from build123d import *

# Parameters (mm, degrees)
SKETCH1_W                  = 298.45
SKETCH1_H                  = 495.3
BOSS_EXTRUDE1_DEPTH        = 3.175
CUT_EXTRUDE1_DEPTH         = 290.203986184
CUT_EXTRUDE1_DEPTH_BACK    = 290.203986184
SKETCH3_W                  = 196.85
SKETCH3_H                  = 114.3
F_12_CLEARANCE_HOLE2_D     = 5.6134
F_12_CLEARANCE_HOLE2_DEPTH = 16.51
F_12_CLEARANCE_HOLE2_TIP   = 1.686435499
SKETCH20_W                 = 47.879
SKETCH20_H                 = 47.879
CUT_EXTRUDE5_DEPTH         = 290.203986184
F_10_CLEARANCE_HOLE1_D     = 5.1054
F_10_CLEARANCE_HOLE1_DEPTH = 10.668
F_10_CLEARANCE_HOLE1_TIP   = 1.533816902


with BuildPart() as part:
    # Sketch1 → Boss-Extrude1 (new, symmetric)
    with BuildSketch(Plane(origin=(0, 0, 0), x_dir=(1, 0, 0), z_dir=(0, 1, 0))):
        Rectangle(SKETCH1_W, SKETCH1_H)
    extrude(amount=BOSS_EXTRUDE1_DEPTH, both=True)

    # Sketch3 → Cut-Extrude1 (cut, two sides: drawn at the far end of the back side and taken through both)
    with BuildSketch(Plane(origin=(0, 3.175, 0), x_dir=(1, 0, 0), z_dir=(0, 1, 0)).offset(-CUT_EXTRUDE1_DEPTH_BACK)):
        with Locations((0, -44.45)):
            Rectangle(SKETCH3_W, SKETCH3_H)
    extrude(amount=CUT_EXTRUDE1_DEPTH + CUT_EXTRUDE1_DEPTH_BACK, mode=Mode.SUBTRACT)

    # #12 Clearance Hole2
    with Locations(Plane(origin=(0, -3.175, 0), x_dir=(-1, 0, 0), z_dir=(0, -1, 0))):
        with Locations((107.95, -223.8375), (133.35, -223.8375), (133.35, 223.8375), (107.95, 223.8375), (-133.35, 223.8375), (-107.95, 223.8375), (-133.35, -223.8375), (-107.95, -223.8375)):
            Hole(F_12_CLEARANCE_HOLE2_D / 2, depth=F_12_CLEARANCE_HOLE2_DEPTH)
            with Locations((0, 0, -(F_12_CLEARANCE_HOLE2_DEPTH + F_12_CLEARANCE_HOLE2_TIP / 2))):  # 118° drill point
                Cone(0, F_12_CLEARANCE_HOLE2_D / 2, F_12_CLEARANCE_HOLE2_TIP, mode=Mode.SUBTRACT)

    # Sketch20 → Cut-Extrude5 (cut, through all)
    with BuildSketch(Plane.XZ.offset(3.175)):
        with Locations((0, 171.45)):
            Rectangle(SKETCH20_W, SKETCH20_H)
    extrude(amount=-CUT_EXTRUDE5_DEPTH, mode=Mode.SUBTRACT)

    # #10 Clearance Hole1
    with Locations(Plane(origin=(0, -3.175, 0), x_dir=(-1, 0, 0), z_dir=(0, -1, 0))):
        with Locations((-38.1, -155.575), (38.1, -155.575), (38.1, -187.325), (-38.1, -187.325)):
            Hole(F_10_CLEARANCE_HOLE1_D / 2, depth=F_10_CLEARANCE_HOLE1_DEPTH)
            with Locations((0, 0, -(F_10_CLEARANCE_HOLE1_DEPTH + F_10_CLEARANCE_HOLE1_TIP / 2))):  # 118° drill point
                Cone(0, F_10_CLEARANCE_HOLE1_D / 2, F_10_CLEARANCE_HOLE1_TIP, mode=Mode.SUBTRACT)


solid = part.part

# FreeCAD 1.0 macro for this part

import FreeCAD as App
import Part
import Sketcher
Q = App.Units.Quantity


def add_polygon(sketch, points):
    """Adds a closed chain of lines whose ends are joined by coincident constraints."""
    first, n = sketch.GeometryCount, len(points)
    for a, b in zip(points, points[1:] + points[:1]):
        sketch.addGeometry(Part.LineSegment(App.Vector(*a, 0), App.Vector(*b, 0)), False)
    for i in range(n):
        sketch.addConstraint(Sketcher.Constraint("Coincident", first + i, 2, first + (i + 1) % n, 1))

doc = App.newDocument("Part")
body = doc.addObject("PartDesign::Body", "Body")

# Sketch on XZ plane
sketch1 = body.newObject("Sketcher::SketchObject", "Sketch")
sketch1.AttachmentSupport = (doc.getObject("XZ_Plane"), [""])
sketch1.MapMode = "FlatFace"
add_polygon(sketch1, [(-149, -248), (-149, 248), (149, 248), (149, -248)])  # lines 0-3
sketch1.addConstraint([
    Sketcher.Constraint("Vertical", 0),
    Sketcher.Constraint("Horizontal", 1),
    Sketcher.Constraint("Vertical", 2),
    Sketcher.Constraint("Horizontal", 3),
    Sketcher.Constraint("Symmetric", 0, 2, 2, 2, -1, 1),
    Sketcher.Constraint("DistanceY", 0, 1, 0, 2, Q("19.5 in")),
    Sketcher.Constraint("DistanceX", 1, 1, 1, 2, Q("11.75 in")),
])
pad1 = body.newObject("PartDesign::Pad", "Pad")
pad1.Profile = sketch1
pad1.Length = Q("0.25 in")
pad1.Midplane = True

# Sketch on XZ plane
sketch2 = body.newObject("Sketcher::SketchObject", "Sketch001")
sketch2.AttachmentSupport = (doc.getObject("XZ_Plane"), [""])
sketch2.MapMode = "FlatFace"
sketch2.AttachmentOffset = App.Placement(App.Vector(0, 0, -0.125 * 25.4), App.Rotation())
add_polygon(sketch2, [(-98, -13), (-98, 102), (98, 102), (98, -13)])  # lines 0-3
sketch2.addConstraint([
    Sketcher.Constraint("Vertical", 0),
    Sketcher.Constraint("Horizontal", 1),
    Sketcher.Constraint("Vertical", 2),
    Sketcher.Constraint("Horizontal", 3),
    Sketcher.Constraint("DistanceY", 0, 1, 0, 2, Q("4.5 in")),
    Sketcher.Constraint("DistanceY", -1, 1, 0, 2, Q("4 in")),
    Sketcher.Constraint("DistanceX", 1, 1, 1, 2, Q("7.75 in")),
    Sketcher.Constraint("DistanceX", 0, 2, -1, 1, Q("3.875 in")),
])
pocket1 = body.newObject("PartDesign::Pocket", "Pocket")
pocket1.Profile = sketch2
pocket1.Type = "ThroughAll"
pocket1.Midplane = True

# Sketch on XZ plane
sketch3 = body.newObject("Sketcher::SketchObject", "Sketch002")
sketch3.AttachmentSupport = (doc.getObject("XZ_Plane"), [""])
sketch3.MapMode = "FlatFace"
sketch3.AttachmentOffset = App.Placement(App.Vector(0, 0, 0.125 * 25.4), App.Rotation())
sketch3.addGeometry([
    Part.Circle(App.Vector(-108, 223.8, 0), App.Vector(0, 0, 1), 2.8),  # 0
    Part.Circle(App.Vector(-133.3, 223.8, 0), App.Vector(0, 0, 1), 2.8),  # 1
    Part.Circle(App.Vector(-133.3, -223.8, 0), App.Vector(0, 0, 1), 2.8),  # 2
    Part.Circle(App.Vector(-108, -223.8, 0), App.Vector(0, 0, 1), 2.8),  # 3
    Part.Circle(App.Vector(133.3, -223.8, 0), App.Vector(0, 0, 1), 2.8),  # 4
    Part.Circle(App.Vector(108, -223.8, 0), App.Vector(0, 0, 1), 2.8),  # 5
    Part.Circle(App.Vector(133.3, 223.8, 0), App.Vector(0, 0, 1), 2.8),  # 6
    Part.Circle(App.Vector(108, 223.8, 0), App.Vector(0, 0, 1), 2.8),  # 7
], False)
sketch3.addConstraint([
    Sketcher.Constraint("Equal", 0, 1),
    Sketcher.Constraint("Equal", 1, 2),
    Sketcher.Constraint("Equal", 2, 3),
    Sketcher.Constraint("Equal", 3, 4),
    Sketcher.Constraint("Equal", 4, 5),
    Sketcher.Constraint("Equal", 5, 6),
    Sketcher.Constraint("Equal", 6, 7),
    Sketcher.Constraint("Symmetric", 1, 3, 4, 3, -1, 1),
    Sketcher.Constraint("Symmetric", 0, 3, 5, 3, -1, 1),
    Sketcher.Constraint("Symmetric", 2, 3, 6, 3, -1, 1),
    Sketcher.Constraint("Symmetric", 3, 3, 7, 3, -1, 1),
    Sketcher.Constraint("Symmetric", 2, 3, 4, 3, -2),
    Sketcher.Constraint("Symmetric", 3, 3, 5, 3, -2),
    Sketcher.Constraint("Horizontal", 0, 3, 1, 3),
    Sketcher.Constraint("Diameter", 0, Q("0.221 in")),
    Sketcher.Constraint("DistanceX", 1, 3, 0, 3, Q("1 in")),
    Sketcher.Constraint("DistanceX", 3, 3, 4, 3, Q("9.5 in")),
    Sketcher.Constraint("DistanceY", -1, 1, 0, 3, Q("8.8125 in")),
])
doc.recompute()
hole = body.newObject("PartDesign::Hole", "Hole")
hole.Profile = sketch3
hole.ThreadType = "None"
hole.Diameter = Q("0.221 in")
hole.DepthType = "Dimension"
hole.Depth = Q("0.65 in")
hole.DrillPoint = "Angled"
hole.DrillPointAngle = 118

# Sketch on XZ plane
sketch4 = body.newObject("Sketcher::SketchObject", "Sketch003")
sketch4.AttachmentSupport = (doc.getObject("XZ_Plane"), [""])
sketch4.MapMode = "FlatFace"
sketch4.AttachmentOffset = App.Placement(App.Vector(0, 0, 0.125 * 25.4), App.Rotation())
add_polygon(sketch4, [(-24, 195), (-24, 148), (24, 148), (24, 195)])  # lines 0-3
sketch4.addConstraint([
    Sketcher.Constraint("Vertical", 0),
    Sketcher.Constraint("Horizontal", 1),
    Sketcher.Constraint("Vertical", 2),
    Sketcher.Constraint("Horizontal", 3),
    Sketcher.Constraint("Equal", 3, 0),
    Sketcher.Constraint("DistanceX", 1, 1, 1, 2, Q("1.885 in")),
    Sketcher.Constraint("DistanceX", 0, 2, -1, 1, Q("0.9425 in")),
    Sketcher.Constraint("DistanceY", -1, 1, 0, 2, Q("5.8075 in")),
])
pocket2 = body.newObject("PartDesign::Pocket", "Pocket001")
pocket2.Profile = sketch4
pocket2.Type = "ThroughAll"

# Sketch on XZ plane
sketch5 = body.newObject("Sketcher::SketchObject", "Sketch004")
sketch5.AttachmentSupport = (doc.getObject("XZ_Plane"), [""])
sketch5.MapMode = "FlatFace"
sketch5.AttachmentOffset = App.Placement(App.Vector(0, 0, 0.125 * 25.4), App.Rotation())
sketch5.addGeometry([
    Part.Circle(App.Vector(38.1, 155.6, 0), App.Vector(0, 0, 1), 2.6),
    Part.Circle(App.Vector(-38.1, 155.6, 0), App.Vector(0, 0, 1), 2.6),
    Part.Circle(App.Vector(-38.1, 187.3, 0), App.Vector(0, 0, 1), 2.6),
    Part.Circle(App.Vector(38.1, 187.3, 0), App.Vector(0, 0, 1), 2.6),
], False)
sketch5.addConstraint([
    Sketcher.Constraint("Equal", 0, 1),
    Sketcher.Constraint("Equal", 1, 2),
    Sketcher.Constraint("Equal", 2, 3),
    Sketcher.Constraint("Symmetric", 0, 3, 1, 3, -2),
    Sketcher.Constraint("Symmetric", 2, 3, 3, 3, -2),
    Sketcher.Constraint("Vertical", 1, 3, 2, 3),
    Sketcher.Constraint("Diameter", 0, Q("0.201 in")),
    Sketcher.Constraint("DistanceX", 1, 3, 0, 3, Q("3 in")),
    Sketcher.Constraint("DistanceY", 1, 3, 2, 3, Q("1.25 in")),
    Sketcher.Constraint("DistanceY", -1, 1, 0, 3, Q("6.125 in")),
])
doc.recompute()
hole2 = body.newObject("PartDesign::Hole", "Hole001")
hole2.Profile = sketch5
hole2.ThreadType = "None"
hole2.Diameter = Q("0.201 in")
hole2.DepthType = "Dimension"
hole2.Depth = Q("0.42 in")
hole2.DrillPoint = "Angled"
hole2.DrillPointAngle = 118

doc.recompute()
